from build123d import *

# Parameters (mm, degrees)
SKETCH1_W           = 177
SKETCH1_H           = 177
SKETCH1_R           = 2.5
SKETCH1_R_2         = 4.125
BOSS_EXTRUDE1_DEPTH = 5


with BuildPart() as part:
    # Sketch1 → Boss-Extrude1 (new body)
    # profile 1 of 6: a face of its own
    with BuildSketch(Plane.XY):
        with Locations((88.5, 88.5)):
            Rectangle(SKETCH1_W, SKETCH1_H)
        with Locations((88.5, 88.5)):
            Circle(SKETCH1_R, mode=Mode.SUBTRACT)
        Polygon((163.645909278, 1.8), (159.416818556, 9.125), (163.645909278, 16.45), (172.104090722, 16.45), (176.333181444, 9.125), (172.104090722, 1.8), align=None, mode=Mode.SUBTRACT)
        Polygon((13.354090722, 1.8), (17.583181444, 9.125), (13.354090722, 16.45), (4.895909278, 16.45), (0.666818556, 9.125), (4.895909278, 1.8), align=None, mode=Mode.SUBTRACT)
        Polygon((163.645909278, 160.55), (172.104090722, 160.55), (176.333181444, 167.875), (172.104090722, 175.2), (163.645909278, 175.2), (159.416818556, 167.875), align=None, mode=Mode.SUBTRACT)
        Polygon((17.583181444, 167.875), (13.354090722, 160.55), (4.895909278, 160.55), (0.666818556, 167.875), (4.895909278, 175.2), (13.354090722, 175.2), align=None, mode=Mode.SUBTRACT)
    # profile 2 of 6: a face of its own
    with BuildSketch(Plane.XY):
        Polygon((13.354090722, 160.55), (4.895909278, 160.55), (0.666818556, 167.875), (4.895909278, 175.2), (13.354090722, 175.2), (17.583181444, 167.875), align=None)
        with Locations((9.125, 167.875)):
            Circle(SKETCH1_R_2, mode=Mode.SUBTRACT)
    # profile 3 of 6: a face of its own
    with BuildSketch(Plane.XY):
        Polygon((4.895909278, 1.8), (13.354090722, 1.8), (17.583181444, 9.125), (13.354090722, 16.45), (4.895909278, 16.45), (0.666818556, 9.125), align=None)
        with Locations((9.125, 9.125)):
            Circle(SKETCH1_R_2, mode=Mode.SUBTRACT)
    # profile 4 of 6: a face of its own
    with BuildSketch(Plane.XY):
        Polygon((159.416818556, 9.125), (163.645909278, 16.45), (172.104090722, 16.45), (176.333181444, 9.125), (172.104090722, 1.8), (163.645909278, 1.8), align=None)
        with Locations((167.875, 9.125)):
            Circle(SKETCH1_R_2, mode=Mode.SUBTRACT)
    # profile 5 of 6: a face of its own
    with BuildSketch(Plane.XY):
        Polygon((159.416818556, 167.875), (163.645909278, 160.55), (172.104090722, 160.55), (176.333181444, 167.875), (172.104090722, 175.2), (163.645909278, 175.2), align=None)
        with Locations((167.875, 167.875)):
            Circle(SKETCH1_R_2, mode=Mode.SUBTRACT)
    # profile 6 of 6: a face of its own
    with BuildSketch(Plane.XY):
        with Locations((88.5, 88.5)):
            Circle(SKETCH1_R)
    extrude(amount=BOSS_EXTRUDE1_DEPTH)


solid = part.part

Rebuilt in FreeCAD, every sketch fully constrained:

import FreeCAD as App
import Part
import Sketcher
Q = App.Units.Quantity

doc = App.newDocument("Part")
body = doc.addObject("PartDesign::Body", "Body")

sketch1 = body.newObject("Sketcher::SketchObject", "Sketch")
sketch1.AttachmentSupport = (doc.getObject("XY_Plane"), [""])
sketch1.MapMode = "FlatFace"
sketch1.addGeometry(Part.LineSegment(App.Vector(0, 177, 0), App.Vector(0, 0, 0)), False)
sketch1.addGeometry(Part.LineSegment(App.Vector(0, 0, 0), App.Vector(177, 0, 0)), False)
sketch1.addGeometry(Part.LineSegment(App.Vector(177, 0, 0), App.Vector(177, 177, 0)), False)
sketch1.addGeometry(Part.LineSegment(App.Vector(177, 177, 0), App.Vector(0, 177, 0)), False)
sketch1.addGeometry(Part.Circle(App.Vector(9.125, 9.125, 0), App.Vector(0, 0, 1), 4.125), False)
sketch1.addGeometry(Part.Circle(App.Vector(167.875, 9.125, 0), App.Vector(0, 0, 1), 4.125), False)
sketch1.addGeometry(Part.Circle(App.Vector(9.125, 167.875, 0), App.Vector(0, 0, 1), 4.125), False)
sketch1.addGeometry(Part.Circle(App.Vector(167.875, 167.875, 0), App.Vector(0, 0, 1), 4.125), False)
sketch1.addConstraint(Sketcher.Constraint("Coincident", 0, 2, 1, 1))
sketch1.addConstraint(Sketcher.Constraint("Coincident", 1, 2, 2, 1))
sketch1.addConstraint(Sketcher.Constraint("Coincident", 2, 2, 3, 1))
sketch1.addConstraint(Sketcher.Constraint("Coincident", 3, 2, 0, 1))
sketch1.addConstraint(Sketcher.Constraint("Vertical", 0))
sketch1.addConstraint(Sketcher.Constraint("Horizontal", 1))
sketch1.addConstraint(Sketcher.Constraint("Vertical", 2))
sketch1.addConstraint(Sketcher.Constraint("Horizontal", 3))
sketch1.addConstraint(Sketcher.Constraint("Coincident", 0, 2, -1, 1))
sketch1.addConstraint(Sketcher.Constraint("Equal", 4, 5))
sketch1.addConstraint(Sketcher.Constraint("Equal", 5, 6))
sketch1.addConstraint(Sketcher.Constraint("Equal", 6, 7))
sketch1.addConstraint(Sketcher.Constraint("Horizontal", 4, 3, 5, 3))
sketch1.addConstraint(Sketcher.Constraint("Horizontal", 6, 3, 7, 3))
sketch1.addConstraint(Sketcher.Constraint("Vertical", 4, 3, 6, 3))
sketch1.addConstraint(Sketcher.Constraint("Vertical", 5, 3, 7, 3))
sketch1.addConstraint(Sketcher.Constraint("Equal", 3, 0))
sketch1.addConstraint(Sketcher.Constraint("Diameter", 4, Q("8.25 mm")))
sketch1.addConstraint(Sketcher.Constraint("DistanceX", 1, 1, 1, 2, Q("177 mm")))
sketch1.addConstraint(Sketcher.Constraint("DistanceX", 4, 3, 5, 3, Q("158.75 mm")))
sketch1.addConstraint(Sketcher.Constraint("DistanceY", 4, 3, 6, 3, Q("158.75 mm")))
sketch1.addConstraint(Sketcher.Constraint("DistanceX", -1, 1, 4, 3, Q("9.125 mm")))
sketch1.addConstraint(Sketcher.Constraint("DistanceY", -1, 1, 4, 3, Q("9.125 mm")))
pad1 = body.newObject("PartDesign::Pad", "Pad")
pad1.Profile = sketch1
pad1.Length = 5

doc.recompute()
